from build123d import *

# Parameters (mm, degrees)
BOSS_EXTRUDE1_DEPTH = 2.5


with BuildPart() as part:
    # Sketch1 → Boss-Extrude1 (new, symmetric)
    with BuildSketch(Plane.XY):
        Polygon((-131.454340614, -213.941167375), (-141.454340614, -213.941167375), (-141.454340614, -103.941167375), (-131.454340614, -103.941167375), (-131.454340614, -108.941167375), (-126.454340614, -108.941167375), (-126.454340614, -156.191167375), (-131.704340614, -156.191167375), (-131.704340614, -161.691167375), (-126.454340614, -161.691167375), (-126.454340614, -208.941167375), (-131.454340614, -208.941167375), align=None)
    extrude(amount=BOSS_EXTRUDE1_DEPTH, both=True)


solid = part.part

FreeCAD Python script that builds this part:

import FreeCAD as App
import Part
import Sketcher
from FreeCAD import Vector


def add_polygon(sketch, points):
    """Adds a closed chain of lines whose ends are joined by coincident constraints."""
    first, n = sketch.GeometryCount, len(points)
    for a, b in zip(points, points[1:] + points[:1]):
        sketch.addGeometry(Part.LineSegment(App.Vector(*a, 0), App.Vector(*b, 0)), False)
    for i in range(n):
        sketch.addConstraint(Sketcher.Constraint("Coincident", first + i, 2, first + (i + 1) % n, 1))

doc = App.newDocument("Part")
body = doc.addObject("PartDesign::Body", "Body")

# Sketch on XY plane
sketch1 = body.newObject("Sketcher::SketchObject", "Sketch")
sketch1.AttachmentSupport = (doc.getObject("XY_Plane"), [""])
sketch1.MapMode = "FlatFace"
add_polygon(sketch1, [(-141.454341, -213.941167), (-131.454341, -213.941167), (-131.454341, -208.941167), (-126.454341, -208.941167), (-126.454341, -161.691167), (-131.704341, -161.691167), (-131.704341, -156.191167), (-126.454341, -156.191167), (-126.454341, -108.941167), (-131.454341, -108.941167), (-131.454341, -103.941167), (-141.454341, -103.941167)])  # lines 0-11
sketch1.addConstraint([
    Sketcher.Constraint("Horizontal", 0),
    Sketcher.Constraint("Vertical", 1),
    Sketcher.Constraint("Horizontal", 2),
    Sketcher.Constraint("Vertical", 3),
    Sketcher.Constraint("Horizontal", 4),
    Sketcher.Constraint("Vertical", 5),
    Sketcher.Constraint("Horizontal", 6),
    Sketcher.Constraint("Vertical", 7),
    Sketcher.Constraint("Horizontal", 8),
    Sketcher.Constraint("Vertical", 9),
    Sketcher.Constraint("Horizontal", 10),
    Sketcher.Constraint("Vertical", 11),
    Sketcher.Constraint("Vertical", 3, 2, 6, 2),
    Sketcher.Constraint("Vertical", 1, 2, 8, 2),
    Sketcher.Constraint("Equal", 8, 1),
    Sketcher.Constraint("Equal", 3, 7),
    Sketcher.Constraint("Equal", 1, 9),
    Sketcher.Constraint("DistanceX", 0, 1, 0, 2, 10.0),
    Sketcher.Constraint("DistanceX", 2, 1, 2, 2, 5.0),
    Sketcher.Constraint("DistanceY", 11, 2, 11, 1, 110.0),
    Sketcher.Constraint("DistanceY", 5, 1, 5, 2, 5.5),
    Sketcher.Constraint("DistanceX", 4, 2, 4, 1, 5.25),
    Sketcher.Constraint("DistanceX", 0, 2, -1, 1, 131.454341),
    Sketcher.Constraint("DistanceY", 0, 2, -1, 1, 213.941167),
])
pad1 = body.newObject("PartDesign::Pad", "Pad")
pad1.Profile = sketch1
pad1.Length = 5
pad1.Midplane = True

doc.recompute()
